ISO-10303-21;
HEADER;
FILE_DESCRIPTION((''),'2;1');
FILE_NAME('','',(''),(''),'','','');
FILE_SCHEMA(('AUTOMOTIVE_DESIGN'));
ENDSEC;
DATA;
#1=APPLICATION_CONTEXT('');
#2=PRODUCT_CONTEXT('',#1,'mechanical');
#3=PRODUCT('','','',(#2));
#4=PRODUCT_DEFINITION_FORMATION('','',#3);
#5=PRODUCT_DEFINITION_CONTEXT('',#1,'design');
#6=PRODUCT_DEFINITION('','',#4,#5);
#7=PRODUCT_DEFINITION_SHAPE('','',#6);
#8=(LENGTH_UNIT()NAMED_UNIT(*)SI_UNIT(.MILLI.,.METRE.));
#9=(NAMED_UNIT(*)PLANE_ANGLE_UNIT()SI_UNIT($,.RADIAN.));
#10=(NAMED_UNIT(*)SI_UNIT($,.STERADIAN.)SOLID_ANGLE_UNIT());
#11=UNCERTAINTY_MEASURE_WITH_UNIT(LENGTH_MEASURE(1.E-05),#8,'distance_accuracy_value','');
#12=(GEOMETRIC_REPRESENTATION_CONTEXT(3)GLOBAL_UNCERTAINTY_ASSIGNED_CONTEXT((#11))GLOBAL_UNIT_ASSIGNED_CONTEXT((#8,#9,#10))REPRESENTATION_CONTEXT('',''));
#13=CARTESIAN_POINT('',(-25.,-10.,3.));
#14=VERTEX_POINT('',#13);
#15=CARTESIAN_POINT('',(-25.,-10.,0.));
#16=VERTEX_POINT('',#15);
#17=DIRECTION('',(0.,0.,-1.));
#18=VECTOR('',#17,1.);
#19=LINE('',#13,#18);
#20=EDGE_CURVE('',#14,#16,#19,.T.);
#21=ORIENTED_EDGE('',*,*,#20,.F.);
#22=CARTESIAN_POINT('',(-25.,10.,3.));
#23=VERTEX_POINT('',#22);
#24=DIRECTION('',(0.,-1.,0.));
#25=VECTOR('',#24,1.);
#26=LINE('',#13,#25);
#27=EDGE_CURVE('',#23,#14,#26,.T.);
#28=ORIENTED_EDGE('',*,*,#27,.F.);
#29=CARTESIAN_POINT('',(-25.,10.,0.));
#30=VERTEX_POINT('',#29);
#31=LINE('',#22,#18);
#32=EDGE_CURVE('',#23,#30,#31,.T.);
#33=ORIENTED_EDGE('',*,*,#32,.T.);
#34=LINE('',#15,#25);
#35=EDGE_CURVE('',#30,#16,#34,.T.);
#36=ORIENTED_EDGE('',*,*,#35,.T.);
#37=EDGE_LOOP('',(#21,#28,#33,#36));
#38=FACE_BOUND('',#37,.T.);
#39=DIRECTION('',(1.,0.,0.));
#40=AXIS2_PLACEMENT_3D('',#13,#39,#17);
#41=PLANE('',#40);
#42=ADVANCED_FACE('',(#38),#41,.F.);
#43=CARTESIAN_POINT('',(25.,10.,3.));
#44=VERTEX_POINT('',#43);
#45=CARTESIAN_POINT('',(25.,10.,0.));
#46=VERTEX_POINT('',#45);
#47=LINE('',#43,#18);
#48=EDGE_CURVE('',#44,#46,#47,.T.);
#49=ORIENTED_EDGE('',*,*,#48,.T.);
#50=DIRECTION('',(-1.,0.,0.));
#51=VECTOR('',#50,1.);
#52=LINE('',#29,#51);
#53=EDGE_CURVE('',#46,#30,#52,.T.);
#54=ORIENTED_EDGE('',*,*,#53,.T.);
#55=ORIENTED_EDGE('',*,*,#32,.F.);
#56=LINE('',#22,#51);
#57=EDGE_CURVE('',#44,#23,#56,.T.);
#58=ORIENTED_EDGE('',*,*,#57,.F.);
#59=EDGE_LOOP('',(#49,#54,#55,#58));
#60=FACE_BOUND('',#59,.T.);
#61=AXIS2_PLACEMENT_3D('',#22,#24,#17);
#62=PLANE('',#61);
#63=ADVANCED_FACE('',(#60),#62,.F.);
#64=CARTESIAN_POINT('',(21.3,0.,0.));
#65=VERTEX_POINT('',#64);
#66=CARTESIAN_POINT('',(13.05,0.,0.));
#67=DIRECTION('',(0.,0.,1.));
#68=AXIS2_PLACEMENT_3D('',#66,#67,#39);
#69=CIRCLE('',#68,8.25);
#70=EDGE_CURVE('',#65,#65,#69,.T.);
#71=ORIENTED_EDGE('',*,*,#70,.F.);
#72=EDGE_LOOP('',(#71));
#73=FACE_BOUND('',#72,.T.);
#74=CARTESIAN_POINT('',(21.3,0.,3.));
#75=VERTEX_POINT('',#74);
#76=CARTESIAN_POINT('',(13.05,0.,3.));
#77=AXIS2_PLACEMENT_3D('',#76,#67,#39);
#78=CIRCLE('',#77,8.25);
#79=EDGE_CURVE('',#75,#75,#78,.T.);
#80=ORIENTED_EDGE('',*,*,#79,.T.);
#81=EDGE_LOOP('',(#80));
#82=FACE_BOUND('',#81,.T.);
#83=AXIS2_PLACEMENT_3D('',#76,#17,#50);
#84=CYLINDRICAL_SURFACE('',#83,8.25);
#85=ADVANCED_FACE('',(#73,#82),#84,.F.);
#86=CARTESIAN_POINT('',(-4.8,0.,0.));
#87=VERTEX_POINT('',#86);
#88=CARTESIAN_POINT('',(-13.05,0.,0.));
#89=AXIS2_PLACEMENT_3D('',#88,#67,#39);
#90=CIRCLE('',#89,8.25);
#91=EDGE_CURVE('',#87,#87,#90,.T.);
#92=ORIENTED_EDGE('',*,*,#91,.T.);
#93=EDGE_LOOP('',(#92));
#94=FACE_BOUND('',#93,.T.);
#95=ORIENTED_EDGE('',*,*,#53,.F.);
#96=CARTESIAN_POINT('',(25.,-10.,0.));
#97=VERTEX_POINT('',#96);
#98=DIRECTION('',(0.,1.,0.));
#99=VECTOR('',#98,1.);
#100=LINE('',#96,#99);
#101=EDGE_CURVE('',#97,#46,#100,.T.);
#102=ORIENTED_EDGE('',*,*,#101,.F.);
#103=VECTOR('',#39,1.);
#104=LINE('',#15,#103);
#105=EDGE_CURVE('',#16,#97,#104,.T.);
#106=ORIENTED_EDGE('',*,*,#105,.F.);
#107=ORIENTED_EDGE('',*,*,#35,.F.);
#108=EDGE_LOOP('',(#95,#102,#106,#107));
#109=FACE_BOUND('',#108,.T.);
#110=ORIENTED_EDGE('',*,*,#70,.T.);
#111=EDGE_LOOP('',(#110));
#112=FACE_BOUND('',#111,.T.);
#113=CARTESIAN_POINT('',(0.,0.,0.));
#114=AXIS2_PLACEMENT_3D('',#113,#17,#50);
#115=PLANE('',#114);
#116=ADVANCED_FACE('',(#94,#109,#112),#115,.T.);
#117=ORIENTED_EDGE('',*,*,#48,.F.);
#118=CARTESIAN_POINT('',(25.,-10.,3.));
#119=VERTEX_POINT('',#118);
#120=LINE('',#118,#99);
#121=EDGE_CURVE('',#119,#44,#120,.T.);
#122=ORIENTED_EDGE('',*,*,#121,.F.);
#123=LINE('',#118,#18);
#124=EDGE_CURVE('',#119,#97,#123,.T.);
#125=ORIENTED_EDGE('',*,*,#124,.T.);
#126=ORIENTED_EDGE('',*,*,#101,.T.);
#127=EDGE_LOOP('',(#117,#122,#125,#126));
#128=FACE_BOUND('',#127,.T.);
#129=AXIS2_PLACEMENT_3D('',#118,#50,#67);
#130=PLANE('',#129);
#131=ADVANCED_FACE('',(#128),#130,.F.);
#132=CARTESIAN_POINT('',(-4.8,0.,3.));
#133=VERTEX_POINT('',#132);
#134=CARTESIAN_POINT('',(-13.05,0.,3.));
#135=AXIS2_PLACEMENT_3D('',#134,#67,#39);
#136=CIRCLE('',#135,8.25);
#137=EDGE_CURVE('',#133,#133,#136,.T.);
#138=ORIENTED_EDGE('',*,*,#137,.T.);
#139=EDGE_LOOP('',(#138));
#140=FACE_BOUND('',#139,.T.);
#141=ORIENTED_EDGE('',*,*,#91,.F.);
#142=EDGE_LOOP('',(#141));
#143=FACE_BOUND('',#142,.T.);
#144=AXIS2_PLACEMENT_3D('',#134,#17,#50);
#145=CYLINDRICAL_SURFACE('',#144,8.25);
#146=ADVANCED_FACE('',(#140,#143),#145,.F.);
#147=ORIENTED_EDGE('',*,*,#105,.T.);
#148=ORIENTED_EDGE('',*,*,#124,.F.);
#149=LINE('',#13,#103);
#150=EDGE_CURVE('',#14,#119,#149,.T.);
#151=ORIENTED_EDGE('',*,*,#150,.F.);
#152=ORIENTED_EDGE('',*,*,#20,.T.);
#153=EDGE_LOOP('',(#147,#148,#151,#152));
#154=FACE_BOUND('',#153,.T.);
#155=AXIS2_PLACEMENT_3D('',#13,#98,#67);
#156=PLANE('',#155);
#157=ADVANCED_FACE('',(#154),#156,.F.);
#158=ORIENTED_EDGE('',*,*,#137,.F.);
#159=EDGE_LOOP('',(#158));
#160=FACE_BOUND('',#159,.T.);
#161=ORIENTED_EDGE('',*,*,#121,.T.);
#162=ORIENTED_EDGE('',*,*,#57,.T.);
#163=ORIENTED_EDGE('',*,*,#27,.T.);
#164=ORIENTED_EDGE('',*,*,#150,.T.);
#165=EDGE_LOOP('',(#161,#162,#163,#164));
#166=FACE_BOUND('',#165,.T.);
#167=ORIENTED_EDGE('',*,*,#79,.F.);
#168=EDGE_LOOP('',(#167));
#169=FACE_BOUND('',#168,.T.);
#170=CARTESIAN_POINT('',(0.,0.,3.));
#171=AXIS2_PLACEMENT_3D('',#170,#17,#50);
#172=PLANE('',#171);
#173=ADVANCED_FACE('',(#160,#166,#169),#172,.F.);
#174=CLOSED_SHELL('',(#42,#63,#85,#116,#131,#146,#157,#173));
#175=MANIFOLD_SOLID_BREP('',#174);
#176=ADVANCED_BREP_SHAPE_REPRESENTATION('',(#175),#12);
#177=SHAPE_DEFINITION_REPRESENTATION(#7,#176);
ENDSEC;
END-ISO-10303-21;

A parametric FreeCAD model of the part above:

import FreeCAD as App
import Part
import Sketcher
from FreeCAD import Vector
Q = App.Units.Quantity

doc = App.newDocument("Part")
params = doc.addObject("Spreadsheet::Sheet", "Params")
for row, (alias, value) in enumerate([
    ("sketch1_diameter", "16.5 mm"),
    ("sketch1_width", "50 mm"),
    ("sketch1_height", "20 mm"),
    ("pad1_length", "3 mm"),
], start=1):
    params.set(f"A{row}", alias)
    params.set(f"B{row}", "=" + value)
    params.setAlias(f"B{row}", alias)

body = doc.addObject("PartDesign::Body", "Body")

# Sketch on XY plane
sketch1 = body.newObject("Sketcher::SketchObject", "Sketch")
sketch1.AttachmentSupport = (doc.getObject("XY_Plane"), [""])
sketch1.MapMode = "FlatFace"
sketch1.addGeometry(Part.LineSegment(Vector(-25, 10, 0), Vector(-25, -10, 0)), False)
sketch1.addGeometry(Part.LineSegment(Vector(-25, -10, 0), Vector(25, -10, 0)), False)
sketch1.addGeometry(Part.LineSegment(Vector(25, -10, 0), Vector(25, 10, 0)), False)
sketch1.addGeometry(Part.LineSegment(Vector(25, 10, 0), Vector(-25, 10, 0)), False)
sketch1.addGeometry(Part.Circle(Vector(-13.05, 0, 0), Vector(0, 0, 1), 8.25), False)
sketch1.addGeometry(Part.Circle(Vector(13.05, 0, 0), Vector(0, 0, 1), 8.25), False)
sketch1.addConstraint(Sketcher.Constraint("Coincident", 0, 2, 1, 1))
sketch1.addConstraint(Sketcher.Constraint("Coincident", 1, 2, 2, 1))
sketch1.addConstraint(Sketcher.Constraint("Coincident", 2, 2, 3, 1))
sketch1.addConstraint(Sketcher.Constraint("Coincident", 3, 2, 0, 1))
sketch1.addConstraint(Sketcher.Constraint("Vertical", 0))
sketch1.addConstraint(Sketcher.Constraint("Horizontal", 1))
sketch1.addConstraint(Sketcher.Constraint("Vertical", 2))
sketch1.addConstraint(Sketcher.Constraint("Horizontal", 3))
sketch1.addConstraint(Sketcher.Constraint("Equal", 4, 5))
sketch1.addConstraint(Sketcher.Constraint("Symmetric", 4, 3, 5, 3, -1, 1))
sketch1.addConstraint(Sketcher.Constraint("Symmetric", 0, 2, 2, 2, -1, 1))
sketch1.addConstraint(Sketcher.Constraint("PointOnObject", 4, 3, -1))
sketch1.addConstraint(Sketcher.Constraint("Diameter", 4, Q("16.5 mm")))
sketch1.addConstraint(Sketcher.Constraint("DistanceX", 1, 1, 1, 2, Q("50 mm")))
sketch1.addConstraint(Sketcher.Constraint("DistanceY", 0, 2, 0, 1, Q("20 mm")))
sketch1.addConstraint(Sketcher.Constraint("DistanceX", 4, 3, 5, 3, Q("26.1 mm")))
sketch1.setExpression("Constraints[12]", "Params.sketch1_diameter")
sketch1.setExpression("Constraints[13]", "Params.sketch1_width")
sketch1.setExpression("Constraints[14]", "Params.sketch1_height")
pad1 = body.newObject("PartDesign::Pad", "Pad")
pad1.Profile = sketch1
pad1.setExpression("Length", "Params.pad1_length")

doc.recompute()
